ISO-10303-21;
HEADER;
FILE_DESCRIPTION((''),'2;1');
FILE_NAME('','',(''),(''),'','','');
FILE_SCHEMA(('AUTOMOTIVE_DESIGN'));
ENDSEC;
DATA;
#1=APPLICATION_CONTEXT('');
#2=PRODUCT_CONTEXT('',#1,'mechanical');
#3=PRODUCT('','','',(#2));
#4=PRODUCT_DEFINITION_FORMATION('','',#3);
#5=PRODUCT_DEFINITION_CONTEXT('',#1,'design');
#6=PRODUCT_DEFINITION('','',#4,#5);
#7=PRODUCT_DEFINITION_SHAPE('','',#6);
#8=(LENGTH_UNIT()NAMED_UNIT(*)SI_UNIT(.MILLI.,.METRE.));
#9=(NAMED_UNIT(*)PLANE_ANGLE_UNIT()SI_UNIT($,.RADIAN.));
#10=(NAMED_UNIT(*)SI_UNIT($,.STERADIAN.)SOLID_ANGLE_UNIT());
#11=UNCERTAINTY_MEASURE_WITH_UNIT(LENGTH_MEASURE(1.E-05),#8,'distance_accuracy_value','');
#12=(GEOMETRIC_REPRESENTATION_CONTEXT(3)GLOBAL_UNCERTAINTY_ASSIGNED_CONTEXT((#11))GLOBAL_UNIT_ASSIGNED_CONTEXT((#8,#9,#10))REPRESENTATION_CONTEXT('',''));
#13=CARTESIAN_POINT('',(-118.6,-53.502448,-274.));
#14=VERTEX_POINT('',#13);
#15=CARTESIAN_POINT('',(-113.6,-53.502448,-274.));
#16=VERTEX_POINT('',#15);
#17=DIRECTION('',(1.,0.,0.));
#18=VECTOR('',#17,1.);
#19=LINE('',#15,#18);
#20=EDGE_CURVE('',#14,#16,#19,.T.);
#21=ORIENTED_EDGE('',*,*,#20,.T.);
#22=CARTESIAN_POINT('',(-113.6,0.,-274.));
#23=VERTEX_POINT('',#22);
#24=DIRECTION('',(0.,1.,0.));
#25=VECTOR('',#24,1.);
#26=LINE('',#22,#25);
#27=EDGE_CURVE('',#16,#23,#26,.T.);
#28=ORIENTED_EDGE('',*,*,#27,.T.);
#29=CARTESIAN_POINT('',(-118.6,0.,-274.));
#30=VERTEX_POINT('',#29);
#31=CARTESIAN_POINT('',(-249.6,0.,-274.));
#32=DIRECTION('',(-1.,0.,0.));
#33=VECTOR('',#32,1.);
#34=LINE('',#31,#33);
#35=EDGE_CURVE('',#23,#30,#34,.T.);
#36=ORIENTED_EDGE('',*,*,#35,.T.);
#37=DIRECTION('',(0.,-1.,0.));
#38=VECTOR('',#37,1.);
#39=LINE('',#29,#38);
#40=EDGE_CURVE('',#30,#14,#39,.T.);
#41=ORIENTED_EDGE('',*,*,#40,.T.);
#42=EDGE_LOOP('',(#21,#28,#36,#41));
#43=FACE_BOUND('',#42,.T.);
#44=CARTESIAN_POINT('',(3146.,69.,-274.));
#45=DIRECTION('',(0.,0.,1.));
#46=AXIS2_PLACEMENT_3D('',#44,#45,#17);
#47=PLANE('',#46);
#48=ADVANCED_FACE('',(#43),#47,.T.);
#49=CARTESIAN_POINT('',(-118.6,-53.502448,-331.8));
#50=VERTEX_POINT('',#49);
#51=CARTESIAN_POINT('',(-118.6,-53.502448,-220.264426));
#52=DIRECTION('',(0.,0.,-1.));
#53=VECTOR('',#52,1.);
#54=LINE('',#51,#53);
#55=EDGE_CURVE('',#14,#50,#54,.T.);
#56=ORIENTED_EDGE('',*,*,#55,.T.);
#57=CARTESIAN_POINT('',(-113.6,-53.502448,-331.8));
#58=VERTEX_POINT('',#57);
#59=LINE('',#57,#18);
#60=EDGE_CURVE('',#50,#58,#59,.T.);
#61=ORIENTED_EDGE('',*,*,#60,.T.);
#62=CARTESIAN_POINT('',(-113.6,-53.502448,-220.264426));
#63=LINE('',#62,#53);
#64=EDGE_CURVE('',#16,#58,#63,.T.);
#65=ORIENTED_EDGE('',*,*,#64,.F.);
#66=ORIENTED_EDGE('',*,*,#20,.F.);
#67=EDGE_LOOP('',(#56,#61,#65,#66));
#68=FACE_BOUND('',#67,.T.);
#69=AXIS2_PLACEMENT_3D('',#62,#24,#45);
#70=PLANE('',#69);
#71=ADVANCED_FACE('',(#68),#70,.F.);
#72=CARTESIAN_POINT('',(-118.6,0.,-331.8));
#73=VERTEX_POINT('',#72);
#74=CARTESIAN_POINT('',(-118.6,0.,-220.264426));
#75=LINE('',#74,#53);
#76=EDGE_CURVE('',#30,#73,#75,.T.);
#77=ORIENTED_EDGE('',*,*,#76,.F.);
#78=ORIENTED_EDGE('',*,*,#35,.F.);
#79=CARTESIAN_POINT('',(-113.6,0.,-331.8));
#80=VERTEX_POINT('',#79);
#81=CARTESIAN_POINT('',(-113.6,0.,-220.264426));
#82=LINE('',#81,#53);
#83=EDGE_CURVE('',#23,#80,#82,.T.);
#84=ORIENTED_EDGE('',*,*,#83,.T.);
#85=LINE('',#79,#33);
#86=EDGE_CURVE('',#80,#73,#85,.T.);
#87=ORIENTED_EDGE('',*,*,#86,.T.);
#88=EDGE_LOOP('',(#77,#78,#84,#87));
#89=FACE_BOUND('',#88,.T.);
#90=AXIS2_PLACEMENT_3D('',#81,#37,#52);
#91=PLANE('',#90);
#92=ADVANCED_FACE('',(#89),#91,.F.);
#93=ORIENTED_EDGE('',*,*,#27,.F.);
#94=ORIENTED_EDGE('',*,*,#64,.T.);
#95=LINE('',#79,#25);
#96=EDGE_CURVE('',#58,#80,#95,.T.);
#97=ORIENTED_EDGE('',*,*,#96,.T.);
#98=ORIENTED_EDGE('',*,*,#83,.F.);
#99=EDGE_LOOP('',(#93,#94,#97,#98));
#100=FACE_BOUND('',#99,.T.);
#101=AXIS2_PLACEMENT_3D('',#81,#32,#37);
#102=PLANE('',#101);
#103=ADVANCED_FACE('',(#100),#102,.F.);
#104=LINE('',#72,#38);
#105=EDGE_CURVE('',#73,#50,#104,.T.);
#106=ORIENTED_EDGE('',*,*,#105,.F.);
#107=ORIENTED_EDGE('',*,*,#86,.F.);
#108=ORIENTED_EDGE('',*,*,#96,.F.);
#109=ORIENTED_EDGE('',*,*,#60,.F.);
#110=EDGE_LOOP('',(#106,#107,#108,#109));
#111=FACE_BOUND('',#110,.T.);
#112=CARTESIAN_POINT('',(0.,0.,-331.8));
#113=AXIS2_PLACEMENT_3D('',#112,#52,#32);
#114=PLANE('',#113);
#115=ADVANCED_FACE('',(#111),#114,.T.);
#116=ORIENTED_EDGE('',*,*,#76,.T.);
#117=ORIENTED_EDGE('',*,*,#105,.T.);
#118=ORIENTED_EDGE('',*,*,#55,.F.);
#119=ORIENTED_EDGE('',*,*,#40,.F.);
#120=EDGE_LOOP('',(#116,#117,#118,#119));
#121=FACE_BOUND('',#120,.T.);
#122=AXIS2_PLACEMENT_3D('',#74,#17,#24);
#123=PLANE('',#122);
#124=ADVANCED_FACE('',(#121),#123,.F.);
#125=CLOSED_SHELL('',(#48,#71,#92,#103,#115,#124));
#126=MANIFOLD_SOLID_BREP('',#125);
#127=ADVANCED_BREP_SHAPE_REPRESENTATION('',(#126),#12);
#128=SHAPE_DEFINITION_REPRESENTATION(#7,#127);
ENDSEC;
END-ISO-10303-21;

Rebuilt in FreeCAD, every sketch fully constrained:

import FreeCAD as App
import Part
import Sketcher

V = App.Vector
Q = App.Units.Quantity


def add_polygon(sketch, points):
    """Adds a closed chain of lines whose ends are joined by coincident constraints."""
    first, n = sketch.GeometryCount, len(points)
    for a, b in zip(points, points[1:] + points[:1]):
        sketch.addGeometry(Part.LineSegment(App.Vector(*a, 0), App.Vector(*b, 0)), False)
    for i in range(n):
        sketch.addConstraint(Sketcher.Constraint("Coincident", first + i, 2, first + (i + 1) % n, 1))

doc = App.newDocument("Part")
body = doc.addObject("PartDesign::Body", "Body")

# Sketch on XY plane
sketch1 = body.newObject("Sketcher::SketchObject", "Sketch")
sketch1.AttachmentSupport = (doc.getObject("XY_Plane"), [""])
sketch1.MapMode = "FlatFace"
sketch1.AttachmentOffset = App.Placement(V(0, 0, -331.8), App.Rotation())
add_polygon(sketch1, [(-118.6, 0), (-118.6, -53.502448), (-113.6, -53.502448), (-113.6, 0)])  # lines 0-3
sketch1.addConstraint(Sketcher.Constraint("Vertical", 0))
sketch1.addConstraint(Sketcher.Constraint("Horizontal", 1))
sketch1.addConstraint(Sketcher.Constraint("Vertical", 2))
sketch1.addConstraint(Sketcher.Constraint("Horizontal", 3))
sketch1.addConstraint(Sketcher.Constraint("PointOnObject", 2, 2, -1))
sketch1.addConstraint(Sketcher.Constraint("DistanceX", 1, 1, 1, 2, Q("5 mm")))
sketch1.addConstraint(Sketcher.Constraint("DistanceX", 0, 2, -1, 1, Q("118.6 mm")))
sketch1.addConstraint(Sketcher.Constraint("DistanceY", 0, 2, 0, 1, Q("53.502448 mm")))
pad1 = body.newObject("PartDesign::Pad", "Pad")
pad1.Profile = sketch1
pad1.Length = 57.8

doc.recompute()
